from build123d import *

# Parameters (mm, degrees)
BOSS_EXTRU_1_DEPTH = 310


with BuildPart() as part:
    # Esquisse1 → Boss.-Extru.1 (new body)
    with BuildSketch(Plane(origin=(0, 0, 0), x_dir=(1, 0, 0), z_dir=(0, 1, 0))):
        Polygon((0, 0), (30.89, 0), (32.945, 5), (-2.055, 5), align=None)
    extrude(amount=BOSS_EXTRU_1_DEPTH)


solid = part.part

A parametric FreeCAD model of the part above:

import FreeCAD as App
import Part
import Sketcher

V = App.Vector

doc = App.newDocument("Part")
params = doc.addObject("Spreadsheet::Sheet", "Params")
for row, (alias, value) in enumerate([
    ("sketch1_width", "35 mm"),
    ("sketch1_width2", "30.89 mm"),
    ("pad1_length", "310 mm"),
], start=1):
    params.set(f"A{row}", alias)
    params.set(f"B{row}", "=" + value)
    params.setAlias(f"B{row}", alias)

body = doc.addObject("PartDesign::Body", "Body")

# Sketch on XZ plane
sketch1 = body.newObject("Sketcher::SketchObject", "Sketch")
sketch1.AttachmentSupport = (doc.getObject("XZ_Plane"), [""])
sketch1.MapMode = "FlatFace"
sketch1.addGeometry([
    Part.LineSegment(V(0, 0, 0), V(30.89, 0, 0)),
    Part.LineSegment(V(30.89, 0, 0), V(32.945, -5, 0)),
    Part.LineSegment(V(32.945, -5, 0), V(-2.055, -5, 0)),
    Part.LineSegment(V(-2.055, -5, 0), V(0, 0, 0)),
], False)
sketch1.addConstraint([
    Sketcher.Constraint("Coincident", 0, 2, 1, 1),
    Sketcher.Constraint("Coincident", 1, 2, 2, 1),
    Sketcher.Constraint("Coincident", 2, 2, 3, 1),
    Sketcher.Constraint("Coincident", 3, 2, 0, 1),
    Sketcher.Constraint("Horizontal", 0),
    Sketcher.Constraint("Horizontal", 2),
    Sketcher.Constraint("Coincident", 3, 2, -1, 1),
    Sketcher.Constraint("Equal", 1, 3),
    Sketcher.Constraint("DistanceX", 2, 2, 2, 1, 35.0),
    Sketcher.Constraint("DistanceY", 1, 2, -1, 1, 5.0),
    Sketcher.Constraint("DistanceX", 0, 1, 0, 2, 30.89),
])
sketch1.setExpression("Constraints[8]", "Params.sketch1_width")
sketch1.setExpression("Constraints[10]", "Params.sketch1_width2")
pad1 = body.newObject("PartDesign::Pad", "Pad")
pad1.Profile = sketch1
pad1.setExpression("Length", "Params.pad1_length")
pad1.Reversed = True

doc.recompute()
